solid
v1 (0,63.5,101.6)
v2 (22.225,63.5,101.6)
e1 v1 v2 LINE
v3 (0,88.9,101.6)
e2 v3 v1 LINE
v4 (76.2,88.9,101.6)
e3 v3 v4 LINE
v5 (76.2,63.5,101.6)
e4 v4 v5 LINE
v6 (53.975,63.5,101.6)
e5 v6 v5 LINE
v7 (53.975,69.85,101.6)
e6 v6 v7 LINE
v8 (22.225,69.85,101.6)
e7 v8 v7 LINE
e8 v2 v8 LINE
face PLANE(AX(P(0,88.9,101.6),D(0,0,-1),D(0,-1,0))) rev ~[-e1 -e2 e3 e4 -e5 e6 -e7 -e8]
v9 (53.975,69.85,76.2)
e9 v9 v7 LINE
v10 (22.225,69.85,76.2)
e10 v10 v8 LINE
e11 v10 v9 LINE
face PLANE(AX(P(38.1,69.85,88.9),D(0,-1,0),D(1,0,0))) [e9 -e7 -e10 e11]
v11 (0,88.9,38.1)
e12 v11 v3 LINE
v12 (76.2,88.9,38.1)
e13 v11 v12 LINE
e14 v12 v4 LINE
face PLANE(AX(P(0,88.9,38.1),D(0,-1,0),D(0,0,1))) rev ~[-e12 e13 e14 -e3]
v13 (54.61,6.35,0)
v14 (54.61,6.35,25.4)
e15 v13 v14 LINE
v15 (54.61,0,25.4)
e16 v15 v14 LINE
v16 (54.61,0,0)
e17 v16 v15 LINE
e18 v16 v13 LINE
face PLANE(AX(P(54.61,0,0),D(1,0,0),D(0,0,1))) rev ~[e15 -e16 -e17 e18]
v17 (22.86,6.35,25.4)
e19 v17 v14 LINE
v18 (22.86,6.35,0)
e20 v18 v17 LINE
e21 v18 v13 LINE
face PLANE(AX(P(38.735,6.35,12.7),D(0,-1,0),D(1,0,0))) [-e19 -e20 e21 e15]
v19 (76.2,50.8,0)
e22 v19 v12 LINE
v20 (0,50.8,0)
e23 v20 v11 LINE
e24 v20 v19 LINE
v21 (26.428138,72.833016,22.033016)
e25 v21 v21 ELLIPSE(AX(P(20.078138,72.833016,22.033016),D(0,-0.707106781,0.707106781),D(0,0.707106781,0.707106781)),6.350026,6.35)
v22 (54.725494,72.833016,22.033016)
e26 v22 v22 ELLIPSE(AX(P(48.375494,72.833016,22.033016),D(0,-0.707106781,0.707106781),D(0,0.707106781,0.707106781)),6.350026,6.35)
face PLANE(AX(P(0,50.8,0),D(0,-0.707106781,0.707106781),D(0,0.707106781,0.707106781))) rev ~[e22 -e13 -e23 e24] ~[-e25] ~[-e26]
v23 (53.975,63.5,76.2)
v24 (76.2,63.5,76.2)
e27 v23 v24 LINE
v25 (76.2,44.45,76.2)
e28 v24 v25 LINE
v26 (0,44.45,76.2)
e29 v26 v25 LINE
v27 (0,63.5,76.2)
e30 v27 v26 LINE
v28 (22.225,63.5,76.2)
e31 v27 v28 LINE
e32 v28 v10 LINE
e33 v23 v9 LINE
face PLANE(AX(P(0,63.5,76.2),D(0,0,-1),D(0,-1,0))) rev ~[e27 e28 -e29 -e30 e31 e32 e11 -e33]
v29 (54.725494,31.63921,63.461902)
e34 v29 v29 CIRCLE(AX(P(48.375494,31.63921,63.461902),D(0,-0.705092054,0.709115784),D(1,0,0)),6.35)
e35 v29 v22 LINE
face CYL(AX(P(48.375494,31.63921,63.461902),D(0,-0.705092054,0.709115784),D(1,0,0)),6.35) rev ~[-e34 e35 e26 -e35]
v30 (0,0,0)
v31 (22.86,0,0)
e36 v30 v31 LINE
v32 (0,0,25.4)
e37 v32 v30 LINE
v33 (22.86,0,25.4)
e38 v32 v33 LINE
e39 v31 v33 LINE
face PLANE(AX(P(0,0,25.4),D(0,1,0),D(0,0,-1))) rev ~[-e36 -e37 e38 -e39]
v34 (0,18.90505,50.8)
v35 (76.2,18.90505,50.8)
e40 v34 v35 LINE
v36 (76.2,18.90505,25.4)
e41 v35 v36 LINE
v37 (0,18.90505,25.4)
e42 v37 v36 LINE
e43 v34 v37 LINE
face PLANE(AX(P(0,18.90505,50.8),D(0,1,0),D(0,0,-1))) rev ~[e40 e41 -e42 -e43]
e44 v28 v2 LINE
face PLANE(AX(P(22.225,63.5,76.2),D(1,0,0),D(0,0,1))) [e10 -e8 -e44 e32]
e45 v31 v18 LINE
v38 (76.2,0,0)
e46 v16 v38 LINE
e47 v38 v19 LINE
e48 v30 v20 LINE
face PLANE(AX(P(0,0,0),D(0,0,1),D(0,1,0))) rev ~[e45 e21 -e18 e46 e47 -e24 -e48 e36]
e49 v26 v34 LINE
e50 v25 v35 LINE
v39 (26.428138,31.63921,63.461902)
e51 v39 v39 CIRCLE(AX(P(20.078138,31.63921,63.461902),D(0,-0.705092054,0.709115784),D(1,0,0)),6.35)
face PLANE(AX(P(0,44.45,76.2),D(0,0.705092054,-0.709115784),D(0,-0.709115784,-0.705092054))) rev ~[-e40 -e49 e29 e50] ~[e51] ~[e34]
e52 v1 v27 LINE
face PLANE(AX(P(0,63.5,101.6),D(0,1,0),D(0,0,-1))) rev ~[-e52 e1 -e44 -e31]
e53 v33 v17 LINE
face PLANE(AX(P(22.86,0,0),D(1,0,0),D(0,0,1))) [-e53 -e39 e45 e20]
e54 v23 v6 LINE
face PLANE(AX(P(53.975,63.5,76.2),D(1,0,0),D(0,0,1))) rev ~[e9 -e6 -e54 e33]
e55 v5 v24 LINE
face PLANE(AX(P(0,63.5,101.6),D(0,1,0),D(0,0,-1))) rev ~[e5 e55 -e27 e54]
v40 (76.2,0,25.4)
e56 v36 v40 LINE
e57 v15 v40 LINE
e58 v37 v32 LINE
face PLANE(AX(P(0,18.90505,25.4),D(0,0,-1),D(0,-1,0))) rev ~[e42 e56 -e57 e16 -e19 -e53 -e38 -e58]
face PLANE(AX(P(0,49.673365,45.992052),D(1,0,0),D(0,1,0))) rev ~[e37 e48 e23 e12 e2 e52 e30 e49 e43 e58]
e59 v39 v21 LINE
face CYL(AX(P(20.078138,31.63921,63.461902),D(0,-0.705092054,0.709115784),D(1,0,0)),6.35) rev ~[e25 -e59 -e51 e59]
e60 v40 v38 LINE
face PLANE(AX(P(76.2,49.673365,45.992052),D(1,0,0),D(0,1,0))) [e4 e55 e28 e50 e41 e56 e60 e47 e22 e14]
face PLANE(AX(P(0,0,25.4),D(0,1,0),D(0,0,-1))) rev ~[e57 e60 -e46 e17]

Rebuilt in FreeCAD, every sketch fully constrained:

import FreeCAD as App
import Part
import Sketcher
Q = App.Units.Quantity

doc = App.newDocument("Part")
body = doc.addObject("PartDesign::Body", "Body")

sketch1 = body.newObject("Sketcher::SketchObject", "Sketch")
sketch1.AttachmentSupport = (doc.getObject("YZ_Plane"), [""])
sketch1.MapMode = "FlatFace"
sketch1.addGeometry(Part.LineSegment(App.Vector(0, 25.4, 0), App.Vector(0, 0, 0)), False)
sketch1.addGeometry(Part.LineSegment(App.Vector(0, 0, 0), App.Vector(50.8, 0, 0)), False)
sketch1.addGeometry(Part.LineSegment(App.Vector(50.8, 0, 0), App.Vector(88.9, 38.1, 0)), False)
sketch1.addGeometry(Part.LineSegment(App.Vector(88.9, 38.1, 0), App.Vector(88.9, 101.6, 0)), False)
sketch1.addGeometry(Part.LineSegment(App.Vector(88.9, 101.6, 0), App.Vector(63.5, 101.6, 0)), False)
sketch1.addGeometry(Part.LineSegment(App.Vector(63.5, 101.6, 0), App.Vector(63.5, 76.2, 0)), False)
sketch1.addGeometry(Part.LineSegment(App.Vector(63.5, 76.2, 0), App.Vector(44.45, 76.2, 0)), False)
sketch1.addGeometry(Part.LineSegment(App.Vector(44.45, 76.2, 0), App.Vector(18.90505, 50.8, 0)), False)
sketch1.addGeometry(Part.LineSegment(App.Vector(18.90505, 50.8, 0), App.Vector(18.90505, 25.4, 0)), False)
sketch1.addGeometry(Part.LineSegment(App.Vector(18.90505, 25.4, 0), App.Vector(0, 25.4, 0)), False)
sketch1.addConstraint(Sketcher.Constraint("Coincident", 0, 2, 1, 1))
sketch1.addConstraint(Sketcher.Constraint("Coincident", 1, 2, 2, 1))
sketch1.addConstraint(Sketcher.Constraint("Coincident", 2, 2, 3, 1))
sketch1.addConstraint(Sketcher.Constraint("Coincident", 3, 2, 4, 1))
sketch1.addConstraint(Sketcher.Constraint("Coincident", 4, 2, 5, 1))
sketch1.addConstraint(Sketcher.Constraint("Coincident", 5, 2, 6, 1))
sketch1.addConstraint(Sketcher.Constraint("Coincident", 6, 2, 7, 1))
sketch1.addConstraint(Sketcher.Constraint("Coincident", 7, 2, 8, 1))
sketch1.addConstraint(Sketcher.Constraint("Coincident", 8, 2, 9, 1))
sketch1.addConstraint(Sketcher.Constraint("Coincident", 9, 2, 0, 1))
sketch1.addConstraint(Sketcher.Constraint("Vertical", 0))
sketch1.addConstraint(Sketcher.Constraint("Horizontal", 1))
sketch1.addConstraint(Sketcher.Constraint("Vertical", 3))
sketch1.addConstraint(Sketcher.Constraint("Horizontal", 4))
sketch1.addConstraint(Sketcher.Constraint("Vertical", 5))
sketch1.addConstraint(Sketcher.Constraint("Horizontal", 6))
sketch1.addConstraint(Sketcher.Constraint("Vertical", 8))
sketch1.addConstraint(Sketcher.Constraint("Horizontal", 9))
sketch1.addConstraint(Sketcher.Constraint("Coincident", 0, 2, -1, 1))
sketch1.addConstraint(Sketcher.Constraint("Equal", 4, 0))
sketch1.addConstraint(Sketcher.Constraint("Equal", 0, 5))
sketch1.addConstraint(Sketcher.Constraint("Equal", 5, 8))
sketch1.addConstraint(Sketcher.Constraint("DistanceX", 1, 1, 1, 2, Q("2 in")))
sketch1.addConstraint(Sketcher.Constraint("DistanceX", 4, 2, 4, 1, Q("1 in")))
sketch1.addConstraint(Sketcher.Constraint("DistanceY", 3, 1, 3, 2, Q("2.5 in")))
sketch1.addConstraint(Sketcher.Constraint("DistanceY", -1, 1, 3, 2, Q("4 in")))
sketch1.addConstraint(Sketcher.Constraint("Angle", 2, Q("45 deg")))
sketch1.addConstraint(Sketcher.Constraint("DistanceX", 6, 2, 6, 1, Q("0.75 in")))
sketch1.addConstraint(Sketcher.Constraint("DistanceX", 9, 2, 9, 1, Q("18.90505 mm")))
pad1 = body.newObject("PartDesign::Pad", "Pad")
pad1.Profile = sketch1
pad1.Length = Q("3 in")

sketch2 = body.newObject("Sketcher::SketchObject", "Sketch001")
sketch2.AttachmentSupport = (doc.getObject("XZ_Plane"), [""])
sketch2.MapMode = "FlatFace"
sketch2.AttachmentOffset = App.Placement(App.Vector(0, 0, -2.5 * 25.4), App.Rotation())
sketch2.addGeometry(Part.LineSegment(App.Vector(22.225, 101.6, 0), App.Vector(22.225, 76.2, 0)), False)
sketch2.addGeometry(Part.LineSegment(App.Vector(22.225, 76.2, 0), App.Vector(53.975, 76.2, 0)), False)
sketch2.addGeometry(Part.LineSegment(App.Vector(53.975, 76.2, 0), App.Vector(53.975, 101.6, 0)), False)
sketch2.addGeometry(Part.LineSegment(App.Vector(53.975, 101.6, 0), App.Vector(22.225, 101.6, 0)), False)
sketch2.addConstraint(Sketcher.Constraint("Coincident", 0, 2, 1, 1))
sketch2.addConstraint(Sketcher.Constraint("Coincident", 1, 2, 2, 1))
sketch2.addConstraint(Sketcher.Constraint("Coincident", 2, 2, 3, 1))
sketch2.addConstraint(Sketcher.Constraint("Coincident", 3, 2, 0, 1))
sketch2.addConstraint(Sketcher.Constraint("Vertical", 0))
sketch2.addConstraint(Sketcher.Constraint("Horizontal", 1))
sketch2.addConstraint(Sketcher.Constraint("Vertical", 2))
sketch2.addConstraint(Sketcher.Constraint("Horizontal", 3))
sketch2.addConstraint(Sketcher.Constraint("DistanceY", 0, 2, 0, 1, Q("1 in")))
sketch2.addConstraint(Sketcher.Constraint("DistanceY", -1, 1, 0, 2, Q("3 in")))
sketch2.addConstraint(Sketcher.Constraint("DistanceX", 1, 1, 1, 2, Q("1.25 in")))
sketch2.addConstraint(Sketcher.Constraint("DistanceX", -1, 1, 0, 2, Q("0.875 in")))
pocket1 = body.newObject("PartDesign::Pocket", "Pocket")
pocket1.Profile = sketch2
pocket1.Length = Q("0.25 in")

sketch3 = body.newObject("Sketcher::SketchObject", "Sketch002")
sketch3.AttachmentSupport = (doc.getObject("XZ_Plane"), [""])
sketch3.MapMode = "FlatFace"
sketch3.addGeometry(Part.LineSegment(App.Vector(22.86, 25.4, 0), App.Vector(22.86, 0, 0)), False)
sketch3.addGeometry(Part.LineSegment(App.Vector(22.86, 0, 0), App.Vector(54.61, 0, 0)), False)
sketch3.addGeometry(Part.LineSegment(App.Vector(54.61, 0, 0), App.Vector(54.61, 25.4, 0)), False)
sketch3.addGeometry(Part.LineSegment(App.Vector(54.61, 25.4, 0), App.Vector(22.86, 25.4, 0)), False)
sketch3.addConstraint(Sketcher.Constraint("Coincident", 0, 2, 1, 1))
sketch3.addConstraint(Sketcher.Constraint("Coincident", 1, 2, 2, 1))
sketch3.addConstraint(Sketcher.Constraint("Coincident", 2, 2, 3, 1))
sketch3.addConstraint(Sketcher.Constraint("Coincident", 3, 2, 0, 1))
sketch3.addConstraint(Sketcher.Constraint("Vertical", 0))
sketch3.addConstraint(Sketcher.Constraint("Horizontal", 1))
sketch3.addConstraint(Sketcher.Constraint("Vertical", 2))
sketch3.addConstraint(Sketcher.Constraint("Horizontal", 3))
sketch3.addConstraint(Sketcher.Constraint("PointOnObject", 0, 2, -1))
sketch3.addConstraint(Sketcher.Constraint("DistanceY", 0, 2, 0, 1, Q("1 in")))
sketch3.addConstraint(Sketcher.Constraint("DistanceX", 1, 1, 1, 2, Q("1.25 in")))
sketch3.addConstraint(Sketcher.Constraint("DistanceX", -1, 1, 0, 2, Q("0.9 in")))
pocket2 = body.newObject("PartDesign::Pocket", "Pocket001")
pocket2.Profile = sketch3
pocket2.Length = Q("0.25 in")

sketch4 = body.newObject("Sketcher::SketchObject", "Sketch003")
sketch4.Placement = App.Placement(App.Vector(0, -16.000852, 16.092164), App.Rotation(App.Vector(1, 0, 0), App.Vector(0, 0.709115784, 0.705092054), App.Vector(0, -0.705092054, 0.709115784), "ZXY"))
sketch4.addGeometry(Part.Circle(App.Vector(20.078138, 67.182346, 0), App.Vector(0, 0, 1), 6.35), False)
sketch4.addGeometry(Part.Circle(App.Vector(48.375494, 67.182346, 0), App.Vector(0, 0, 1), 6.35), False)
sketch4.addConstraint(Sketcher.Constraint("Equal", 0, 1))
sketch4.addConstraint(Sketcher.Constraint("Horizontal", 0, 3, 1, 3))
sketch4.addConstraint(Sketcher.Constraint("Diameter", 0, Q("0.5 in")))
sketch4.addConstraint(Sketcher.Constraint("DistanceX", -1, 1, 0, 3, Q("20.078138 mm")))
sketch4.addConstraint(Sketcher.Constraint("DistanceY", -1, 1, 0, 3, Q("67.182346 mm")))
sketch4.addConstraint(Sketcher.Constraint("DistanceX", -1, 1, 1, 3, Q("48.375494 mm")))
pocket3 = body.newObject("PartDesign::Pocket", "Pocket002")
pocket3.Profile = sketch4
pocket3.Length = Q("3.17 in")

doc.recompute()
